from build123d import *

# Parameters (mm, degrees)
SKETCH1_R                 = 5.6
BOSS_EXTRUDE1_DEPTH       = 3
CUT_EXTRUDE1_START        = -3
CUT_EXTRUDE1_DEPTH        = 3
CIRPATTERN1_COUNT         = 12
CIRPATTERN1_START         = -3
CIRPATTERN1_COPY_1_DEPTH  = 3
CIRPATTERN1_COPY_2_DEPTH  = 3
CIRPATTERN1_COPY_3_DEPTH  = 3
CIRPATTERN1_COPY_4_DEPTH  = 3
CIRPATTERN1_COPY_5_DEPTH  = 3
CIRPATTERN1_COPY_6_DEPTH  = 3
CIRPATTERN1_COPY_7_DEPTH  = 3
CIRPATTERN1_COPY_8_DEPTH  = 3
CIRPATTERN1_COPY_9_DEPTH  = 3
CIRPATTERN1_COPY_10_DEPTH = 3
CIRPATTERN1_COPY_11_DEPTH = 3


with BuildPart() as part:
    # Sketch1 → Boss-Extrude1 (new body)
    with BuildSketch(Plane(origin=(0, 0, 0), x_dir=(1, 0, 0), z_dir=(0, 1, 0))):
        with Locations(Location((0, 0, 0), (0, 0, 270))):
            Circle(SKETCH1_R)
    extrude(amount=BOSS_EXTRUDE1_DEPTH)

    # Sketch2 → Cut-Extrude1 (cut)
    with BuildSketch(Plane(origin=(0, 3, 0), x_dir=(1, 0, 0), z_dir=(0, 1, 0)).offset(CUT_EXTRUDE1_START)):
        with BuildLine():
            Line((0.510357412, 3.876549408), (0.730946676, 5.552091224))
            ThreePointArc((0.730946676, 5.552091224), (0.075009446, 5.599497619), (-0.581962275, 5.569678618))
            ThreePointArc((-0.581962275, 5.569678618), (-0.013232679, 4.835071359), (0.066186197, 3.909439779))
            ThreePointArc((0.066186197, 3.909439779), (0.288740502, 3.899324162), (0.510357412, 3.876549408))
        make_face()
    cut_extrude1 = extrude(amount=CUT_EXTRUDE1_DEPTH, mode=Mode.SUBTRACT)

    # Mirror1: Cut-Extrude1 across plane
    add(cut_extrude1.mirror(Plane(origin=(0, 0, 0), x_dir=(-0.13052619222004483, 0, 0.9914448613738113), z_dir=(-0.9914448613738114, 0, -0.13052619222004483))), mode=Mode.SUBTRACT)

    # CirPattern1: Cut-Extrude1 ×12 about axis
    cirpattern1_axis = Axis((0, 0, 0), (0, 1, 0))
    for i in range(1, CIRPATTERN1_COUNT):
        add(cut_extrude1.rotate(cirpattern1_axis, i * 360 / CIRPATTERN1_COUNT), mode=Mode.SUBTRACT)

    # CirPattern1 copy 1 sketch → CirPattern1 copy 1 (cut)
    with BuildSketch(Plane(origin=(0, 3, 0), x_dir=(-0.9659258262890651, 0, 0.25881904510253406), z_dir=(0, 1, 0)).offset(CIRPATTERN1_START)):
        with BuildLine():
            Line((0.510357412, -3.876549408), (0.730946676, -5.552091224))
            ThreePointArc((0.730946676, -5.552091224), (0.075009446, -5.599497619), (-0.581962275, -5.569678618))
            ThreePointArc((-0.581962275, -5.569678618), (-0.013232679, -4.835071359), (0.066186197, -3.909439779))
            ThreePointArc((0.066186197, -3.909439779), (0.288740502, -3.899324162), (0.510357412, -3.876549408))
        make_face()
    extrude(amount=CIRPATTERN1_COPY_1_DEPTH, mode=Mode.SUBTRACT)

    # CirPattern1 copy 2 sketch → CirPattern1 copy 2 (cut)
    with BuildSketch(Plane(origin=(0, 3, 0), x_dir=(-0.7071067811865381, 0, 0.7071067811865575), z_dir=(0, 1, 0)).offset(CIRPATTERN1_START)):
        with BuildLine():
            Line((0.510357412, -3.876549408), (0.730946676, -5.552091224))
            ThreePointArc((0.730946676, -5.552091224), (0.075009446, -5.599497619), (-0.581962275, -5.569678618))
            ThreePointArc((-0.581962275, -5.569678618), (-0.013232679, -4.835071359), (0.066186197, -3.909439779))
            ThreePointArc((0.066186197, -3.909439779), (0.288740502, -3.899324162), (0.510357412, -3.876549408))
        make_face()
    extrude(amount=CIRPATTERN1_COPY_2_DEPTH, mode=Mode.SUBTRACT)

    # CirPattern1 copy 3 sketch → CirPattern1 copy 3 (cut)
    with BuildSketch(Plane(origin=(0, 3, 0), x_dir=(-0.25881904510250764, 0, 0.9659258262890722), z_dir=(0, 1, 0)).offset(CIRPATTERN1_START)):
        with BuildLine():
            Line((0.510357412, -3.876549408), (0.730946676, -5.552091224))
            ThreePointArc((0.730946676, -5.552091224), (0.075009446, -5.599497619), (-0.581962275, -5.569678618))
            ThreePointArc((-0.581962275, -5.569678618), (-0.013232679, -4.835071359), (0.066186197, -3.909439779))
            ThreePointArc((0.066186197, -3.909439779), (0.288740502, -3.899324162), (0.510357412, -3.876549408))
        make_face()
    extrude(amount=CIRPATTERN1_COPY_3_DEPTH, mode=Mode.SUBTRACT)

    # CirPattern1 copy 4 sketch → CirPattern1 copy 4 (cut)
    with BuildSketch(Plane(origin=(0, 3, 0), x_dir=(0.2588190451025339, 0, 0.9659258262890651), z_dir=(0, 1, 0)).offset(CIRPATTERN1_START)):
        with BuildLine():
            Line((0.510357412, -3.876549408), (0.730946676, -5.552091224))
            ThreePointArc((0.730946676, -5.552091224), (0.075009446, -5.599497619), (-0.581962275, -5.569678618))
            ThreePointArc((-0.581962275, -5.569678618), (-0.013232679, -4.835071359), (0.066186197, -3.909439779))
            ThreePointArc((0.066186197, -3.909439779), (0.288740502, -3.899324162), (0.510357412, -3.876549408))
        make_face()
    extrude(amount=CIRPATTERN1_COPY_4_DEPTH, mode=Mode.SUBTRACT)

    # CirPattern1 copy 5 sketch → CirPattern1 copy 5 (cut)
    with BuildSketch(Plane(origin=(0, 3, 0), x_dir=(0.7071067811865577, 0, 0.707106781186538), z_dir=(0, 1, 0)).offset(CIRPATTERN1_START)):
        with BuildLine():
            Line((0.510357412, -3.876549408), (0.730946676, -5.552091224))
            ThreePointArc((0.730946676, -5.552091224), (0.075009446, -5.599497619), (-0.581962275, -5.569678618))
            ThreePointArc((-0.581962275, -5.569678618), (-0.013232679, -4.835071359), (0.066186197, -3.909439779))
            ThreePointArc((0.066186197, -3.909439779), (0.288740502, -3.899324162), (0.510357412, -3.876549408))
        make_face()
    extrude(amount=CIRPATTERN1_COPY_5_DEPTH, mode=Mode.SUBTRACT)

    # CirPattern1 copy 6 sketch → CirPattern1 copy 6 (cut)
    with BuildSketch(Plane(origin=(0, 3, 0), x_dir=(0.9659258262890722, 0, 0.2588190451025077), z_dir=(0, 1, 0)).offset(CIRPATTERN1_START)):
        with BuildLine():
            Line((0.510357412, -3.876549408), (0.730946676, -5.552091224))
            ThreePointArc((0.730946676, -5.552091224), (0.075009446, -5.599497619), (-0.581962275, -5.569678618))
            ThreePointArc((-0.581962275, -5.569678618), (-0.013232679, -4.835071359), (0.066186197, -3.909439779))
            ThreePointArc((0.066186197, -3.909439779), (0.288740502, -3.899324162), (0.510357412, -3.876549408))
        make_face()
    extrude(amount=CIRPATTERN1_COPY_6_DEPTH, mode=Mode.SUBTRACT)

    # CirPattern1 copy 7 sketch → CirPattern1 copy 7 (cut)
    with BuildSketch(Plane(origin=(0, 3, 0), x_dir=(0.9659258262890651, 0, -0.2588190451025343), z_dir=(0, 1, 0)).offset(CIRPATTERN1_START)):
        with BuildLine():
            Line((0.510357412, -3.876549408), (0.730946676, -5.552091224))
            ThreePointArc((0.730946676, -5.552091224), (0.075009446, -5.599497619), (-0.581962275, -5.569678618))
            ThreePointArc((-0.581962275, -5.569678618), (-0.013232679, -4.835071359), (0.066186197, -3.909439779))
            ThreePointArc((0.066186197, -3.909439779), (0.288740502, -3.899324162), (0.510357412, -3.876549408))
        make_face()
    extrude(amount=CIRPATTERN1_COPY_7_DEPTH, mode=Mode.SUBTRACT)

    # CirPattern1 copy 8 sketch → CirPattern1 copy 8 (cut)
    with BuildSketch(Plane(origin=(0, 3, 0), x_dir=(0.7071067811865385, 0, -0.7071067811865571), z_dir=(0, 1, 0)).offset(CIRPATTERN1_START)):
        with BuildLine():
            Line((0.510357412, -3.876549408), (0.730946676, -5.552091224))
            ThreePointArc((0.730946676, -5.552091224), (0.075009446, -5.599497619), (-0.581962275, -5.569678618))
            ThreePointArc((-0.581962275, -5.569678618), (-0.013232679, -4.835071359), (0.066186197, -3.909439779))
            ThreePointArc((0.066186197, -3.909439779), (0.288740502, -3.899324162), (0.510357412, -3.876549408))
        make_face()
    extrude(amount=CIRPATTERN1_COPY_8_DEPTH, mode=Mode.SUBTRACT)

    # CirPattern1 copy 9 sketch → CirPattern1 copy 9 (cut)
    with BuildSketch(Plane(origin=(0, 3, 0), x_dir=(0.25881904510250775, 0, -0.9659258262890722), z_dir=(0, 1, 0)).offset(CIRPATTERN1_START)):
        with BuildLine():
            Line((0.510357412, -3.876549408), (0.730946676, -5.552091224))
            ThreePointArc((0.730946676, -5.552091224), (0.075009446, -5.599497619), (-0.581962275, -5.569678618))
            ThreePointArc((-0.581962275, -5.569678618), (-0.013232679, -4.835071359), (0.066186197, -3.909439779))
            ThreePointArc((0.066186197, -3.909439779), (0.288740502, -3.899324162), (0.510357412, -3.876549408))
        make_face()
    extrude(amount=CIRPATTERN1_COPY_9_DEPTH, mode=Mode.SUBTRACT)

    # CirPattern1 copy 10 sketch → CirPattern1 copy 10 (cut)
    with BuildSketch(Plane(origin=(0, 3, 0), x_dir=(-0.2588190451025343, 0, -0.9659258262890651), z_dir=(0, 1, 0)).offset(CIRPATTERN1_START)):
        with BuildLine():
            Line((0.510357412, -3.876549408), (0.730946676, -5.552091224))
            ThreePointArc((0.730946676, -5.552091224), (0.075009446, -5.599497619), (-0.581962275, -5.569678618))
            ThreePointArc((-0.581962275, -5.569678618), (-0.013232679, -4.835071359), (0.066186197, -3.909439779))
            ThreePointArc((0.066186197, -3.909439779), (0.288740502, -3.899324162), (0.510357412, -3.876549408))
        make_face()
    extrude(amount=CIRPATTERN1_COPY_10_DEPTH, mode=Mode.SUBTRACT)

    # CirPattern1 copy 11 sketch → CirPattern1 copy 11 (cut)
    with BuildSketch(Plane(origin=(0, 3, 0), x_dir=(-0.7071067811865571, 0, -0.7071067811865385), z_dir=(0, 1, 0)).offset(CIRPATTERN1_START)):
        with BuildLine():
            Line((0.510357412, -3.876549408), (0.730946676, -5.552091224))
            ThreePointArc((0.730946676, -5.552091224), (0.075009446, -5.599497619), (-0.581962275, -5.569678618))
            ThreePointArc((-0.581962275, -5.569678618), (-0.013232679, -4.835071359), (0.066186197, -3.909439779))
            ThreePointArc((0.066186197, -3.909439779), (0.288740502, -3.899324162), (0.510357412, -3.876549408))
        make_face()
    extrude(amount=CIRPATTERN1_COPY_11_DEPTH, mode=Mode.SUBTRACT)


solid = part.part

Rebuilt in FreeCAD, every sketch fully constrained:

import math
import FreeCAD as App
import Part
import Sketcher
from FreeCAD import Vector
Q = App.Units.Quantity

doc = App.newDocument("Part")
params = doc.addObject("Spreadsheet::Sheet", "Params")
for row, (alias, value) in enumerate([
    ("sketch1_diameter", "11.2 mm"),
    ("pad1_length", "3 mm"),
    ("sketch2_radius", "5.6 mm"),
    ("sketch2_radius2", "3.91 mm"),
    ("pocket1_length", "3 mm"),
    ("sketch3_radius", "5.6 mm"),
    ("sketch3_radius2", "3.91 mm"),
    ("pocket2_length", "3 mm"),
    ("sketch4_radius", "5.6 mm"),
    ("sketch4_radius2", "3.91 mm"),
    ("pocket3_length", "3 mm"),
    ("sketch5_radius", "5.6 mm"),
    ("sketch5_radius2", "3.91 mm"),
    ("pocket4_length", "3 mm"),
    ("sketch6_radius", "5.6 mm"),
    ("sketch6_radius2", "3.91 mm"),
    ("pocket5_length", "3 mm"),
    ("sketch7_radius", "5.6 mm"),
    ("sketch7_radius2", "3.91 mm"),
    ("pocket6_length", "3 mm"),
    ("sketch8_radius", "5.6 mm"),
    ("sketch8_radius2", "3.91 mm"),
    ("pocket7_length", "3 mm"),
    ("sketch9_radius", "5.6 mm"),
    ("sketch9_radius2", "3.91 mm"),
    ("pocket8_length", "3 mm"),
    ("sketch10_radius", "5.6 mm"),
    ("sketch10_radius2", "3.91 mm"),
    ("pocket9_length", "3 mm"),
    ("sketch11_radius", "5.6 mm"),
    ("sketch11_radius2", "3.91 mm"),
    ("pocket10_length", "3 mm"),
    ("sketch12_radius", "5.6 mm"),
    ("sketch12_radius2", "3.91 mm"),
    ("pocket11_length", "3 mm"),
    ("sketch13_radius", "5.6 mm"),
    ("sketch13_radius2", "3.91 mm"),
    ("pocket12_length", "3 mm"),
], start=1):
    params.set(f"A{row}", alias)
    params.set(f"B{row}", "=" + value)
    params.setAlias(f"B{row}", alias)

body = doc.addObject("PartDesign::Body", "Body")

# Sketch on XZ plane
sketch1 = body.newObject("Sketcher::SketchObject", "Sketch")
sketch1.AttachmentSupport = (doc.getObject("XZ_Plane"), [""])
sketch1.MapMode = "FlatFace"
sketch1.addGeometry(Part.Circle(Vector(0, 0, 0), Vector(0, 0, 1), 6), False)
sketch1.addConstraint([
    Sketcher.Constraint("Coincident", 0, 3, -1, 1),
    Sketcher.Constraint("Diameter", 0, 11.2),
])
sketch1.setExpression("Constraints[1]", "Params.sketch1_diameter")
pad1 = body.newObject("PartDesign::Pad", "Pad")
pad1.Profile = sketch1
pad1.setExpression("Length", "Params.pad1_length")
pad1.Reversed = True

# Sketch on XZ plane
sketch2 = body.newObject("Sketcher::SketchObject", "Sketch001")
sketch2.AttachmentSupport = (doc.getObject("XZ_Plane"), [""])
sketch2.MapMode = "FlatFace"
sketch2.addGeometry([
    Part.LineSegment(Vector(0.51, -3.88, 0), Vector(0.73, -5.55, 0)),
    Part.ArcOfCircle(Part.Circle(Vector(0, 0, 0), Vector(0, 0, 1), 5.6), math.radians(-95.97), math.radians(-82.5)),
    Part.ArcOfCircle(Part.Circle(Vector(-1.54, -4.24, 0), Vector(0, 0, 1), 1.64), math.radians(-54), math.radians(12)),
    Part.ArcOfCircle(Part.Circle(Vector(0, 0, 0), Vector(0, 0, 1), 3.91), math.radians(-89.03), math.radians(-82.5)),
], False)
sketch2.addConstraint([
    Sketcher.Constraint("Coincident", 0, 2, 1, 2),
    Sketcher.Constraint("Coincident", 1, 1, 2, 1),
    Sketcher.Constraint("Coincident", 2, 2, 3, 1),
    Sketcher.Constraint("Coincident", 3, 2, 0, 1),
    Sketcher.Constraint("Coincident", 1, 3, -1, 1),
    Sketcher.Constraint("Coincident", 3, 3, -1, 1),
    Sketcher.Constraint("Radius", 1, 5.6),
    Sketcher.Constraint("Radius", 3, 3.91),
    Sketcher.Constraint("Angle", 0, Q("-82.5 deg")),
    Sketcher.Constraint("Radius", 2, 1.643137),
    Sketcher.Constraint("DistanceY", 2, 3, -1, 1, 4.237521),
    Sketcher.Constraint("DistanceY", 0, 2, -1, 1, 5.552091),
    Sketcher.Constraint("DistanceY", 1, 1, -1, 1, 5.569679),
])
sketch2.setExpression("Constraints[6]", "Params.sketch2_radius")
sketch2.setExpression("Constraints[7]", "Params.sketch2_radius2")
pocket1 = body.newObject("PartDesign::Pocket", "Pocket")
pocket1.Profile = sketch2
pocket1.setExpression("Length", "Params.pocket1_length")
doc.recompute()

datumplane = body.newObject("PartDesign::Plane", "DatumPlane")
datumplane.Placement = App.Placement(Vector(0, 0, 0), App.Rotation(Vector(0.130526192, 0, -0.991444861), Vector(0, -1, 0), Vector(-0.991444861, 0, -0.130526192), "ZXY"))
mirrored = body.newObject("PartDesign::Mirrored", "Mirrored")
mirrored.Originals = [pocket1]
mirrored.MirrorPlane = (datumplane, [""])
body.Tip = mirrored
doc.recompute()

polarpattern = body.newObject("PartDesign::PolarPattern", "PolarPattern")
polarpattern.Originals = [pocket1]
polarpattern.Axis = (doc.getObject("Y_Axis"), [""])
polarpattern.Angle = 360
polarpattern.Occurrences = 12
body.Tip = polarpattern

# Sketch on XZ plane
sketch3 = body.newObject("Sketcher::SketchObject", "Sketch002")
sketch3.AttachmentSupport = (doc.getObject("XZ_Plane"), [""])
sketch3.MapMode = "FlatFace"
sketch3.addGeometry([
    Part.LineSegment(Vector(-2.14, -5.17, 0), Vector(-1.5, -3.61, 0)),
    Part.ArcOfCircle(Part.Circle(Vector(0, 0, 0), Vector(0, 0, 1), 3.91), math.radians(-112.5), math.radians(-105.97)),
    Part.ArcOfCircle(Part.Circle(Vector(0.39, -4.49, 0), Vector(0, 0, 1), 1.64), math.radians(153), math.radians(219)),
    Part.ArcOfCircle(Part.Circle(Vector(0, 0, 0), Vector(0, 0, 1), 5.6), math.radians(-112.5), math.radians(-99.03)),
], False)
sketch3.addConstraint([
    Sketcher.Constraint("Coincident", 0, 2, 1, 1),
    Sketcher.Constraint("Coincident", 1, 2, 2, 1),
    Sketcher.Constraint("Coincident", 2, 2, 3, 2),
    Sketcher.Constraint("Coincident", 3, 1, 0, 1),
    Sketcher.Constraint("Coincident", 1, 3, -1, 1),
    Sketcher.Constraint("Coincident", 3, 3, -1, 1),
    Sketcher.Constraint("Radius", 3, 5.6),
    Sketcher.Constraint("Radius", 1, 3.91),
    Sketcher.Constraint("Angle", 0, Q("67.5 deg")),
    Sketcher.Constraint("Radius", 2, 1.643137),
    Sketcher.Constraint("DistanceY", 1, 2, -1, 1, 3.759099),
    Sketcher.Constraint("DistanceX", 0, 2, 2, 3, 1.8908),
    Sketcher.Constraint("DistanceY", 0, 2, -1, 1, 3.612369),
])
sketch3.setExpression("Constraints[6]", "Params.sketch3_radius")
sketch3.setExpression("Constraints[7]", "Params.sketch3_radius2")
pocket2 = body.newObject("PartDesign::Pocket", "Pocket001")
pocket2.Profile = sketch3
pocket2.setExpression("Length", "Params.pocket2_length")

# Sketch on XZ plane
sketch4 = body.newObject("Sketcher::SketchObject", "Sketch003")
sketch4.AttachmentSupport = (doc.getObject("XZ_Plane"), [""])
sketch4.MapMode = "FlatFace"
sketch4.addGeometry([
    Part.LineSegment(Vector(-4.44, -3.41, 0), Vector(-3.1, -2.38, 0)),
    Part.ArcOfCircle(Part.Circle(Vector(0, 0, 0), Vector(0, 0, 1), 3.91), math.radians(-142.5), math.radians(-135.97)),
    Part.ArcOfCircle(Part.Circle(Vector(-1.9, -4.09, 0), Vector(0, 0, 1), 1.64), math.radians(123), math.radians(189)),
    Part.ArcOfCircle(Part.Circle(Vector(0, 0, 0), Vector(0, 0, 1), 5.6), math.radians(-142.5), math.radians(-129.03)),
], False)
sketch4.addConstraint([
    Sketcher.Constraint("Coincident", 0, 2, 1, 1),
    Sketcher.Constraint("Coincident", 1, 2, 2, 1),
    Sketcher.Constraint("Coincident", 2, 2, 3, 2),
    Sketcher.Constraint("Coincident", 3, 1, 0, 1),
    Sketcher.Constraint("Coincident", 1, 3, -1, 1),
    Sketcher.Constraint("Coincident", 3, 3, -1, 1),
    Sketcher.Constraint("Radius", 3, 5.6),
    Sketcher.Constraint("Radius", 1, 3.91),
    Sketcher.Constraint("Angle", 0, Q("37.5 deg")),
    Sketcher.Constraint("Radius", 2, 1.643137),
    Sketcher.Constraint("DistanceY", 2, 3, 0, 2, 1.707799),
    Sketcher.Constraint("DistanceX", 0, 2, -1, 1, 3.102012),
    Sketcher.Constraint("DistanceY", 1, 2, -1, 1, 2.717591),
])
sketch4.setExpression("Constraints[6]", "Params.sketch4_radius")
sketch4.setExpression("Constraints[7]", "Params.sketch4_radius2")
pocket3 = body.newObject("PartDesign::Pocket", "Pocket002")
pocket3.Profile = sketch4
pocket3.setExpression("Length", "Params.pocket3_length")

# Sketch on XZ plane
sketch5 = body.newObject("Sketcher::SketchObject", "Sketch004")
sketch5.AttachmentSupport = (doc.getObject("XZ_Plane"), [""])
sketch5.MapMode = "FlatFace"
sketch5.addGeometry([
    Part.LineSegment(Vector(-5.55, -0.73, 0), Vector(-3.88, -0.51, 0)),
    Part.ArcOfCircle(Part.Circle(Vector(0, 0, 0), Vector(0, 0, 1), 3.91), math.radians(-172.5), math.radians(-165.97)),
    Part.ArcOfCircle(Part.Circle(Vector(-3.69, -2.59, 0), Vector(0, 0, 1), 1.64), math.radians(93), math.radians(159)),
    Part.ArcOfCircle(Part.Circle(Vector(0, 0, 0), Vector(0, 0, 1), 5.6), math.radians(-172.5), math.radians(-159.03)),
], False)
sketch5.addConstraint([
    Sketcher.Constraint("Coincident", 0, 2, 1, 1),
    Sketcher.Constraint("Coincident", 1, 2, 2, 1),
    Sketcher.Constraint("Coincident", 2, 2, 3, 2),
    Sketcher.Constraint("Coincident", 3, 1, 0, 1),
    Sketcher.Constraint("Coincident", 1, 3, -1, 1),
    Sketcher.Constraint("Coincident", 3, 3, -1, 1),
    Sketcher.Constraint("Radius", 3, 5.6),
    Sketcher.Constraint("Radius", 1, 3.91),
    Sketcher.Constraint("Angle", 0, Q("7.5 deg")),
    Sketcher.Constraint("Radius", 2, 1.643137),
    Sketcher.Constraint("DistanceX", 0, 2, 2, 3, 0.183),
    Sketcher.Constraint("DistanceX", 2, 3, -1, 1, 3.693549),
    Sketcher.Constraint("DistanceY", 2, 3, -1, 1, 2.58801),
])
sketch5.setExpression("Constraints[6]", "Params.sketch5_radius")
sketch5.setExpression("Constraints[7]", "Params.sketch5_radius2")
pocket4 = body.newObject("PartDesign::Pocket", "Pocket003")
pocket4.Profile = sketch5
pocket4.setExpression("Length", "Params.pocket4_length")

# Sketch on XZ plane
sketch6 = body.newObject("Sketcher::SketchObject", "Sketch005")
sketch6.AttachmentSupport = (doc.getObject("XZ_Plane"), [""])
sketch6.MapMode = "FlatFace"
sketch6.addGeometry([
    Part.LineSegment(Vector(-5.17, 2.14, 0), Vector(-3.61, 1.5, 0)),
    Part.ArcOfCircle(Part.Circle(Vector(0, 0, 0), Vector(0, 0, 1), 3.91), math.radians(157.5), math.radians(164.03)),
    Part.ArcOfCircle(Part.Circle(Vector(-4.49, -0.39, 0), Vector(0, 0, 1), 1.64), math.radians(63), math.radians(129)),
    Part.ArcOfCircle(Part.Circle(Vector(0, 0, 0), Vector(0, 0, 1), 5.6), math.radians(157.5), math.radians(170.97)),
], False)
sketch6.addConstraint([
    Sketcher.Constraint("Coincident", 0, 2, 1, 1),
    Sketcher.Constraint("Coincident", 1, 2, 2, 1),
    Sketcher.Constraint("Coincident", 2, 2, 3, 2),
    Sketcher.Constraint("Coincident", 3, 1, 0, 1),
    Sketcher.Constraint("Coincident", 1, 3, -1, 1),
    Sketcher.Constraint("Coincident", 3, 3, -1, 1),
    Sketcher.Constraint("Radius", 3, 5.6),
    Sketcher.Constraint("Radius", 1, 3.91),
    Sketcher.Constraint("Angle", 0, Q("-22.5 deg")),
    Sketcher.Constraint("Radius", 2, 1.643137),
    Sketcher.Constraint("DistanceX", 1, 2, -1, 1, 3.759099),
    Sketcher.Constraint("DistanceY", 2, 3, 0, 2, 1.8908),
    Sketcher.Constraint("DistanceX", 0, 2, -1, 1, 3.612369),
])
sketch6.setExpression("Constraints[6]", "Params.sketch6_radius")
sketch6.setExpression("Constraints[7]", "Params.sketch6_radius2")
pocket5 = body.newObject("PartDesign::Pocket", "Pocket004")
pocket5.Profile = sketch6
pocket5.setExpression("Length", "Params.pocket5_length")

# Sketch on XZ plane
sketch7 = body.newObject("Sketcher::SketchObject", "Sketch006")
sketch7.AttachmentSupport = (doc.getObject("XZ_Plane"), [""])
sketch7.MapMode = "FlatFace"
sketch7.addGeometry([
    Part.LineSegment(Vector(-3.41, 4.44, 0), Vector(-2.38, 3.1, 0)),
    Part.ArcOfCircle(Part.Circle(Vector(0, 0, 0), Vector(0, 0, 1), 3.91), math.radians(127.5), math.radians(134.03)),
    Part.ArcOfCircle(Part.Circle(Vector(-4.09, 1.9, 0), Vector(0, 0, 1), 1.64), math.radians(33), math.radians(99)),
    Part.ArcOfCircle(Part.Circle(Vector(0, 0, 0), Vector(0, 0, 1), 5.6), math.radians(127.5), math.radians(140.97)),
], False)
sketch7.addConstraint([
    Sketcher.Constraint("Coincident", 0, 2, 1, 1),
    Sketcher.Constraint("Coincident", 1, 2, 2, 1),
    Sketcher.Constraint("Coincident", 2, 2, 3, 2),
    Sketcher.Constraint("Coincident", 3, 1, 0, 1),
    Sketcher.Constraint("Coincident", 1, 3, -1, 1),
    Sketcher.Constraint("Coincident", 3, 3, -1, 1),
    Sketcher.Constraint("Radius", 3, 5.6),
    Sketcher.Constraint("Radius", 1, 3.91),
    Sketcher.Constraint("Angle", 0, Q("-52.5 deg")),
    Sketcher.Constraint("Radius", 2, 1.643137),
    Sketcher.Constraint("DistanceX", 2, 3, 0, 2, 1.707799),
    Sketcher.Constraint("DistanceY", -1, 1, 0, 2, 3.102012),
    Sketcher.Constraint("DistanceX", 1, 2, -1, 1, 2.717591),
])
sketch7.setExpression("Constraints[6]", "Params.sketch7_radius")
sketch7.setExpression("Constraints[7]", "Params.sketch7_radius2")
pocket6 = body.newObject("PartDesign::Pocket", "Pocket005")
pocket6.Profile = sketch7
pocket6.setExpression("Length", "Params.pocket6_length")

# Sketch on XZ plane
sketch8 = body.newObject("Sketcher::SketchObject", "Sketch007")
sketch8.AttachmentSupport = (doc.getObject("XZ_Plane"), [""])
sketch8.MapMode = "FlatFace"
sketch8.addGeometry([
    Part.LineSegment(Vector(-0.73, 5.55, 0), Vector(-0.51, 3.88, 0)),
    Part.ArcOfCircle(Part.Circle(Vector(0, 0, 0), Vector(0, 0, 1), 3.91), math.radians(97.5), math.radians(104.03)),
    Part.ArcOfCircle(Part.Circle(Vector(-2.59, 3.69, 0), Vector(0, 0, 1), 1.64), math.radians(3), math.radians(69)),
    Part.ArcOfCircle(Part.Circle(Vector(0, 0, 0), Vector(0, 0, 1), 5.6), math.radians(97.5), math.radians(110.97)),
], False)
sketch8.addConstraint([
    Sketcher.Constraint("Coincident", 0, 2, 1, 1),
    Sketcher.Constraint("Coincident", 1, 2, 2, 1),
    Sketcher.Constraint("Coincident", 2, 2, 3, 2),
    Sketcher.Constraint("Coincident", 3, 1, 0, 1),
    Sketcher.Constraint("Coincident", 1, 3, -1, 1),
    Sketcher.Constraint("Coincident", 3, 3, -1, 1),
    Sketcher.Constraint("Radius", 3, 5.6),
    Sketcher.Constraint("Radius", 1, 3.91),
    Sketcher.Constraint("Angle", 0, Q("-82.5 deg")),
    Sketcher.Constraint("Radius", 2, 1.643137),
    Sketcher.Constraint("DistanceY", 2, 3, 0, 2, 0.183),
    Sketcher.Constraint("DistanceX", 2, 3, -1, 1, 2.58801),
    Sketcher.Constraint("DistanceY", -1, 1, 2, 3, 3.693549),
])
sketch8.setExpression("Constraints[6]", "Params.sketch8_radius")
sketch8.setExpression("Constraints[7]", "Params.sketch8_radius2")
pocket7 = body.newObject("PartDesign::Pocket", "Pocket006")
pocket7.Profile = sketch8
pocket7.setExpression("Length", "Params.pocket7_length")

# Sketch on XZ plane
sketch9 = body.newObject("Sketcher::SketchObject", "Sketch008")
sketch9.AttachmentSupport = (doc.getObject("XZ_Plane"), [""])
sketch9.MapMode = "FlatFace"
sketch9.addGeometry([
    Part.LineSegment(Vector(2.14, 5.17, 0), Vector(1.5, 3.61, 0)),
    Part.ArcOfCircle(Part.Circle(Vector(0, 0, 0), Vector(0, 0, 1), 3.91), math.radians(67.5), math.radians(74.03)),
    Part.ArcOfCircle(Part.Circle(Vector(-0.39, 4.49, 0), Vector(0, 0, 1), 1.64), math.radians(-27), math.radians(39)),
    Part.ArcOfCircle(Part.Circle(Vector(0, 0, 0), Vector(0, 0, 1), 5.6), math.radians(67.5), math.radians(80.97)),
], False)
sketch9.addConstraint([
    Sketcher.Constraint("Coincident", 0, 2, 1, 1),
    Sketcher.Constraint("Coincident", 1, 2, 2, 1),
    Sketcher.Constraint("Coincident", 2, 2, 3, 2),
    Sketcher.Constraint("Coincident", 3, 1, 0, 1),
    Sketcher.Constraint("Coincident", 1, 3, -1, 1),
    Sketcher.Constraint("Coincident", 3, 3, -1, 1),
    Sketcher.Constraint("Radius", 3, 5.6),
    Sketcher.Constraint("Radius", 1, 3.91),
    Sketcher.Constraint("Angle", 0, Q("-112.5 deg")),
    Sketcher.Constraint("Radius", 2, 1.643137),
    Sketcher.Constraint("DistanceY", -1, 1, 1, 2, 3.759099),
    Sketcher.Constraint("DistanceX", 2, 3, 0, 2, 1.8908),
    Sketcher.Constraint("DistanceY", -1, 1, 0, 2, 3.612369),
])
sketch9.setExpression("Constraints[6]", "Params.sketch9_radius")
sketch9.setExpression("Constraints[7]", "Params.sketch9_radius2")
pocket8 = body.newObject("PartDesign::Pocket", "Pocket007")
pocket8.Profile = sketch9
pocket8.setExpression("Length", "Params.pocket8_length")

# Sketch on XZ plane
sketch10 = body.newObject("Sketcher::SketchObject", "Sketch009")
sketch10.AttachmentSupport = (doc.getObject("XZ_Plane"), [""])
sketch10.MapMode = "FlatFace"
sketch10.addGeometry([
    Part.LineSegment(Vector(4.44, 3.41, 0), Vector(3.1, 2.38, 0)),
    Part.ArcOfCircle(Part.Circle(Vector(0, 0, 0), Vector(0, 0, 1), 3.91), math.radians(37.5), math.radians(44.03)),
    Part.ArcOfCircle(Part.Circle(Vector(1.9, 4.09, 0), Vector(0, 0, 1), 1.64), math.radians(-57), math.radians(9)),
    Part.ArcOfCircle(Part.Circle(Vector(0, 0, 0), Vector(0, 0, 1), 5.6), math.radians(37.5), math.radians(50.97)),
], False)
sketch10.addConstraint([
    Sketcher.Constraint("Coincident", 0, 2, 1, 1),
    Sketcher.Constraint("Coincident", 1, 2, 2, 1),
    Sketcher.Constraint("Coincident", 2, 2, 3, 2),
    Sketcher.Constraint("Coincident", 3, 1, 0, 1),
    Sketcher.Constraint("Coincident", 1, 3, -1, 1),
    Sketcher.Constraint("Coincident", 3, 3, -1, 1),
    Sketcher.Constraint("Radius", 3, 5.6),
    Sketcher.Constraint("Radius", 1, 3.91),
    Sketcher.Constraint("Angle", 0, Q("-142.5 deg")),
    Sketcher.Constraint("Radius", 2, 1.643137),
    Sketcher.Constraint("DistanceY", 0, 2, 2, 3, 1.707799),
    Sketcher.Constraint("DistanceX", -1, 1, 0, 2, 3.102012),
    Sketcher.Constraint("DistanceY", -1, 1, 1, 2, 2.717591),
])
sketch10.setExpression("Constraints[6]", "Params.sketch10_radius")
sketch10.setExpression("Constraints[7]", "Params.sketch10_radius2")
pocket9 = body.newObject("PartDesign::Pocket", "Pocket008")
pocket9.Profile = sketch10
pocket9.setExpression("Length", "Params.pocket9_length")

# Sketch on XZ plane
sketch11 = body.newObject("Sketcher::SketchObject", "Sketch010")
sketch11.AttachmentSupport = (doc.getObject("XZ_Plane"), [""])
sketch11.MapMode = "FlatFace"
sketch11.addGeometry([
    Part.LineSegment(Vector(5.55, 0.73, 0), Vector(3.88, 0.51, 0)),
    Part.ArcOfCircle(Part.Circle(Vector(0, 0, 0), Vector(0, 0, 1), 3.91), math.radians(7.5), math.radians(14.03)),
    Part.ArcOfCircle(Part.Circle(Vector(3.69, 2.59, 0), Vector(0, 0, 1), 1.64), math.radians(-87), math.radians(-21)),
    Part.ArcOfCircle(Part.Circle(Vector(0, 0, 0), Vector(0, 0, 1), 5.6), math.radians(7.5), math.radians(20.97)),
], False)
sketch11.addConstraint([
    Sketcher.Constraint("Coincident", 0, 2, 1, 1),
    Sketcher.Constraint("Coincident", 1, 2, 2, 1),
    Sketcher.Constraint("Coincident", 2, 2, 3, 2),
    Sketcher.Constraint("Coincident", 3, 1, 0, 1),
    Sketcher.Constraint("Coincident", 1, 3, -1, 1),
    Sketcher.Constraint("Coincident", 3, 3, -1, 1),
    Sketcher.Constraint("Radius", 3, 5.6),
    Sketcher.Constraint("Radius", 1, 3.91),
    Sketcher.Constraint("Angle", 0, Q("-172.5 deg")),
    Sketcher.Constraint("Radius", 2, 1.643137),
    Sketcher.Constraint("DistanceX", 2, 3, 0, 2, 0.183),
    Sketcher.Constraint("DistanceX", -1, 1, 2, 3, 3.693549),
    Sketcher.Constraint("DistanceY", -1, 1, 2, 3, 2.58801),
])
sketch11.setExpression("Constraints[6]", "Params.sketch11_radius")
sketch11.setExpression("Constraints[7]", "Params.sketch11_radius2")
pocket10 = body.newObject("PartDesign::Pocket", "Pocket009")
pocket10.Profile = sketch11
pocket10.setExpression("Length", "Params.pocket10_length")

# Sketch on XZ plane
sketch12 = body.newObject("Sketcher::SketchObject", "Sketch011")
sketch12.AttachmentSupport = (doc.getObject("XZ_Plane"), [""])
sketch12.MapMode = "FlatFace"
sketch12.addGeometry([
    Part.LineSegment(Vector(5.17, -2.14, 0), Vector(3.61, -1.5, 0)),
    Part.ArcOfCircle(Part.Circle(Vector(0, 0, 0), Vector(0, 0, 1), 3.91), math.radians(-22.5), math.radians(-15.97)),
    Part.ArcOfCircle(Part.Circle(Vector(4.49, 0.39, 0), Vector(0, 0, 1), 1.64), math.radians(-117), math.radians(-51)),
    Part.ArcOfCircle(Part.Circle(Vector(0, 0, 0), Vector(0, 0, 1), 5.6), math.radians(-22.5), math.radians(-9.03)),
], False)
sketch12.addConstraint([
    Sketcher.Constraint("Coincident", 0, 2, 1, 1),
    Sketcher.Constraint("Coincident", 1, 2, 2, 1),
    Sketcher.Constraint("Coincident", 2, 2, 3, 2),
    Sketcher.Constraint("Coincident", 3, 1, 0, 1),
    Sketcher.Constraint("Coincident", 1, 3, -1, 1),
    Sketcher.Constraint("Coincident", 3, 3, -1, 1),
    Sketcher.Constraint("Radius", 3, 5.6),
    Sketcher.Constraint("Radius", 1, 3.91),
    Sketcher.Constraint("Angle", 0, Q("157.5 deg")),
    Sketcher.Constraint("Radius", 2, 1.643137),
    Sketcher.Constraint("DistanceX", -1, 1, 1, 2, 3.759099),
    Sketcher.Constraint("DistanceY", 0, 2, 2, 3, 1.8908),
    Sketcher.Constraint("DistanceX", -1, 1, 0, 2, 3.612369),
])
sketch12.setExpression("Constraints[6]", "Params.sketch12_radius")
sketch12.setExpression("Constraints[7]", "Params.sketch12_radius2")
pocket11 = body.newObject("PartDesign::Pocket", "Pocket010")
pocket11.Profile = sketch12
pocket11.setExpression("Length", "Params.pocket11_length")

# Sketch on XZ plane
sketch13 = body.newObject("Sketcher::SketchObject", "Sketch012")
sketch13.AttachmentSupport = (doc.getObject("XZ_Plane"), [""])
sketch13.MapMode = "FlatFace"
sketch13.addGeometry([
    Part.LineSegment(Vector(3.41, -4.44, 0), Vector(2.38, -3.1, 0)),
    Part.ArcOfCircle(Part.Circle(Vector(0, 0, 0), Vector(0, 0, 1), 3.91), math.radians(-52.5), math.radians(-45.97)),
    Part.ArcOfCircle(Part.Circle(Vector(4.09, -1.9, 0), Vector(0, 0, 1), 1.64), math.radians(-147), math.radians(-81)),
    Part.ArcOfCircle(Part.Circle(Vector(0, 0, 0), Vector(0, 0, 1), 5.6), math.radians(-52.5), math.radians(-39.03)),
], False)
sketch13.addConstraint([
    Sketcher.Constraint("Coincident", 0, 2, 1, 1),
    Sketcher.Constraint("Coincident", 1, 2, 2, 1),
    Sketcher.Constraint("Coincident", 2, 2, 3, 2),
    Sketcher.Constraint("Coincident", 3, 1, 0, 1),
    Sketcher.Constraint("Coincident", 1, 3, -1, 1),
    Sketcher.Constraint("Coincident", 3, 3, -1, 1),
    Sketcher.Constraint("Radius", 3, 5.6),
    Sketcher.Constraint("Radius", 1, 3.91),
    Sketcher.Constraint("Angle", 0, Q("127.5 deg")),
    Sketcher.Constraint("Radius", 2, 1.643137),
    Sketcher.Constraint("DistanceX", 0, 2, 2, 3, 1.707799),
    Sketcher.Constraint("DistanceY", 0, 2, -1, 1, 3.102012),
    Sketcher.Constraint("DistanceX", -1, 1, 1, 2, 2.717591),
])
sketch13.setExpression("Constraints[6]", "Params.sketch13_radius")
sketch13.setExpression("Constraints[7]", "Params.sketch13_radius2")
pocket12 = body.newObject("PartDesign::Pocket", "Pocket011")
pocket12.Profile = sketch13
pocket12.setExpression("Length", "Params.pocket12_length")

doc.recompute()
